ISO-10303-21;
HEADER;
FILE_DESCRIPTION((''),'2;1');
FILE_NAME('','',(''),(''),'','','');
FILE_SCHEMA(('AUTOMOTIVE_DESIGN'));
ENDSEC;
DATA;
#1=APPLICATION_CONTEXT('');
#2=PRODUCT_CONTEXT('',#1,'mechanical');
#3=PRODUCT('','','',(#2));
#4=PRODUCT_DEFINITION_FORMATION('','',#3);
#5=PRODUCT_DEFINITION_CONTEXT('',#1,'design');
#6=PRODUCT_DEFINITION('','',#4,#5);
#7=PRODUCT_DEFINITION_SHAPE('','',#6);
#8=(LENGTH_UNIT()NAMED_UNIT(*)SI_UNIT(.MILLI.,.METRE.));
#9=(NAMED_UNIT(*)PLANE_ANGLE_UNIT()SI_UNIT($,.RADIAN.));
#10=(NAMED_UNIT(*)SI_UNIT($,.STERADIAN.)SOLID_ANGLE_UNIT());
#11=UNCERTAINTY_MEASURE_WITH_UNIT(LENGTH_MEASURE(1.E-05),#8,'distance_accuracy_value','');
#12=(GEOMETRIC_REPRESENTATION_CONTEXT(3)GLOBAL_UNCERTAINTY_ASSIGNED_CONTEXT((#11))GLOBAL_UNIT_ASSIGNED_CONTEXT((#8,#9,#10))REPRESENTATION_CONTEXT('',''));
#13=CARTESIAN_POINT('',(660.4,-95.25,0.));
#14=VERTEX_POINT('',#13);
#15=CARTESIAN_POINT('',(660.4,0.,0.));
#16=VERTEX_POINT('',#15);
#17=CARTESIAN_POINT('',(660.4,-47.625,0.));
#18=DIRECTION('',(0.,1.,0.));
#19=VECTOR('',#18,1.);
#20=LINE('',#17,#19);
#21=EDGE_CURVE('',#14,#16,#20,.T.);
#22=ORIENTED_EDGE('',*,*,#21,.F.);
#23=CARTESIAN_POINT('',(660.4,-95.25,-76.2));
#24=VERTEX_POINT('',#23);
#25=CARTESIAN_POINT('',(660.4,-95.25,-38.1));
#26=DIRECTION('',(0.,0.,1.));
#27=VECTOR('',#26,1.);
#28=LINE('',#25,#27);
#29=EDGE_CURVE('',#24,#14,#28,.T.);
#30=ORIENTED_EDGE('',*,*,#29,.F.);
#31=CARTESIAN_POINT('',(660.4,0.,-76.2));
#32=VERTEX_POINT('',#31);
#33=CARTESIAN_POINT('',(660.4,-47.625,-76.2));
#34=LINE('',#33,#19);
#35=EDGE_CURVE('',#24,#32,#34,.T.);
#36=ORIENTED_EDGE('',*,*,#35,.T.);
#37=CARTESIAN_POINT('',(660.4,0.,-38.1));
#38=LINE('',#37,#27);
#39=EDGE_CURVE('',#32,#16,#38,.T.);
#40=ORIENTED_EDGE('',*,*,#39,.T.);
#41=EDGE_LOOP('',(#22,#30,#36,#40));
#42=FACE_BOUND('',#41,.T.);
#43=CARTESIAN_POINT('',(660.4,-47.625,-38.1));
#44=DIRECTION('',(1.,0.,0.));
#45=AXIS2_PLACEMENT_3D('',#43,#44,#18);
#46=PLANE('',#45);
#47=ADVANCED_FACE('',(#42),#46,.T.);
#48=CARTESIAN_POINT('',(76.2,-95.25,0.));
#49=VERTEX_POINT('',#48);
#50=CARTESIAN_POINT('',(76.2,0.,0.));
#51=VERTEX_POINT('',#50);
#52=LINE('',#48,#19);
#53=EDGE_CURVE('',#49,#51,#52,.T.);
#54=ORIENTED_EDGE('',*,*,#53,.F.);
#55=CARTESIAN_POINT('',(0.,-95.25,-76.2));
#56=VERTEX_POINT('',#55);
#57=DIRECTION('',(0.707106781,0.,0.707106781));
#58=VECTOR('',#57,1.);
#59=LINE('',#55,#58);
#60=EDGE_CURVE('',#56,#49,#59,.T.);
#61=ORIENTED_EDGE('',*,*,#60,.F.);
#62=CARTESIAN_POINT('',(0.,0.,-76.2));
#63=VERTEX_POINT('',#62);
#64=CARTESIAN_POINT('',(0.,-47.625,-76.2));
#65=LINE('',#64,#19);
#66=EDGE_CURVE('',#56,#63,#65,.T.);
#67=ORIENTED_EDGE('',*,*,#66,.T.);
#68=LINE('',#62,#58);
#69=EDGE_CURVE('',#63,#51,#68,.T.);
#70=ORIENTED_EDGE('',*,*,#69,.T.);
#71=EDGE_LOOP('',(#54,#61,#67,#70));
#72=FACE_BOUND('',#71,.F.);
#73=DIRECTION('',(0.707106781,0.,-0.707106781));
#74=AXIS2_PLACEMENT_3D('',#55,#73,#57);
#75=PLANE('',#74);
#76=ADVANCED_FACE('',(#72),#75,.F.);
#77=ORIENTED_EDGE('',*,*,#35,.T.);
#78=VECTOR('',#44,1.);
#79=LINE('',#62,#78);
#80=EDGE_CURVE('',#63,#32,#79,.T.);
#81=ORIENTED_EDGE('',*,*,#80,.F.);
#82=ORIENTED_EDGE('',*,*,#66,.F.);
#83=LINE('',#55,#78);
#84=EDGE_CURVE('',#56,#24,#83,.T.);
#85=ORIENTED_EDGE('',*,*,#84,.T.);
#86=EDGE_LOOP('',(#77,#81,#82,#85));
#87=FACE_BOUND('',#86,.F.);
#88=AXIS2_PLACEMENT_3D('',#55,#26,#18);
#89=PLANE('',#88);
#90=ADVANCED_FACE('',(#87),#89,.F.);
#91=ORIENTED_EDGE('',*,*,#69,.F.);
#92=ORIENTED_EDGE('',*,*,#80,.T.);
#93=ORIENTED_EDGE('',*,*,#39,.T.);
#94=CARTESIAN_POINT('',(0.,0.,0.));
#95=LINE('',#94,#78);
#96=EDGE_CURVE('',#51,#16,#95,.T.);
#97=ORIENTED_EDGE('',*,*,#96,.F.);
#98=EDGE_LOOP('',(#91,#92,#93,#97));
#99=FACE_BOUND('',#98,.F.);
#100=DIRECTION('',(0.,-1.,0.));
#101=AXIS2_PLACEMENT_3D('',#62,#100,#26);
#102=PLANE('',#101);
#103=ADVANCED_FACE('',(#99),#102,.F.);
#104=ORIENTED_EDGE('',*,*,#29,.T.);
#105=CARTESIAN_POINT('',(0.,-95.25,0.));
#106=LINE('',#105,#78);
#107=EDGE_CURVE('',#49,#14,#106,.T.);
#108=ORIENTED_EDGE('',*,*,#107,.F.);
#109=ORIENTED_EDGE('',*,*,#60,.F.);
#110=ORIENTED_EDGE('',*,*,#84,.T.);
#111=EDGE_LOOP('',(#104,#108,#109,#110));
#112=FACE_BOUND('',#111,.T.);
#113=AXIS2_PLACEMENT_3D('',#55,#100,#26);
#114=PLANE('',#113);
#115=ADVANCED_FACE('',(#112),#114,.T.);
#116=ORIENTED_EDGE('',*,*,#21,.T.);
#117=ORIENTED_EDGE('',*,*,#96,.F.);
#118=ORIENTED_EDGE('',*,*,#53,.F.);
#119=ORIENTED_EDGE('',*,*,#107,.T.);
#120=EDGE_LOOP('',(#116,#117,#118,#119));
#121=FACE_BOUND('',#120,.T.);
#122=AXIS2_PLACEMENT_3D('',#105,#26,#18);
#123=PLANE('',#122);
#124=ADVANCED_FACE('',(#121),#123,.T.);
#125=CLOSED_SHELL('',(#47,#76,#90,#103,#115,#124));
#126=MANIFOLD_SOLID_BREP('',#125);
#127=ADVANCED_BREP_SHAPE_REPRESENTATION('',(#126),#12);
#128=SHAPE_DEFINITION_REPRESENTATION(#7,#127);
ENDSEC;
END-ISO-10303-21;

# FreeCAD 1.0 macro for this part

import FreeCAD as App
import Part
import Sketcher
Q = App.Units.Quantity


def add_polygon(sketch, points):
    """Adds a closed chain of lines whose ends are joined by coincident constraints."""
    first, n = sketch.GeometryCount, len(points)
    for a, b in zip(points, points[1:] + points[:1]):
        sketch.addGeometry(Part.LineSegment(App.Vector(*a, 0), App.Vector(*b, 0)), False)
    for i in range(n):
        sketch.addConstraint(Sketcher.Constraint("Coincident", first + i, 2, first + (i + 1) % n, 1))

doc = App.newDocument("Part")
body = doc.addObject("PartDesign::Body", "Body")

# Sketch on YZ plane
sketch1 = doc.addObject("Sketcher::SketchObject", "Sketch")
body.addObject(sketch1)
sketch1.AttachmentSupport = (doc.YZ_Plane, [""])
sketch1.MapMode = "FlatFace"
add_polygon(sketch1, [(-95, 0), (-95, -76), (0, -76), (0, 0)])  # lines 0-3
sketch1.addConstraint([
    Sketcher.Constraint("Vertical", 0),
    Sketcher.Constraint("Horizontal", 1),
    Sketcher.Constraint("Vertical", 2),
    Sketcher.Constraint("Horizontal", 3),
    Sketcher.Constraint("Coincident", 2, 2, -1, 1),
    Sketcher.Constraint("DistanceY", 0, 2, 0, 1, Q("3 in")),
    Sketcher.Constraint("DistanceX", 1, 1, 1, 2, Q("3.75 in")),
])
pad1 = doc.addObject("PartDesign::Pad", "Pad")
body.addObject(pad1)
pad1.Profile = sketch1
pad1.Length = Q("26 in")

# Sketch on XZ plane
sketch2 = doc.addObject("Sketcher::SketchObject", "Sketch001")
body.addObject(sketch2)
sketch2.AttachmentSupport = (doc.XZ_Plane, [""])
sketch2.MapMode = "FlatFace"
sketch2.AttachmentOffset = App.Placement(App.Vector(0, 0, 3.75 * 25.4), App.Rotation())
add_polygon(sketch2, [(0, 0), (0, -76), (76, 0)])  # lines 0-2
sketch2.addConstraint([
    Sketcher.Constraint("Vertical", 0),
    Sketcher.Constraint("Horizontal", 2),
    Sketcher.Constraint("Coincident", 2, 2, -1, 1),
    Sketcher.Constraint("Equal", 2, 0),
    Sketcher.Constraint("DistanceX", 2, 2, 2, 1, Q("3 in")),
])
pocket1 = doc.addObject("PartDesign::Pocket", "Pocket")
body.addObject(pocket1)
pocket1.Profile = sketch2
pocket1.Type = "ThroughAll"

doc.recompute()
